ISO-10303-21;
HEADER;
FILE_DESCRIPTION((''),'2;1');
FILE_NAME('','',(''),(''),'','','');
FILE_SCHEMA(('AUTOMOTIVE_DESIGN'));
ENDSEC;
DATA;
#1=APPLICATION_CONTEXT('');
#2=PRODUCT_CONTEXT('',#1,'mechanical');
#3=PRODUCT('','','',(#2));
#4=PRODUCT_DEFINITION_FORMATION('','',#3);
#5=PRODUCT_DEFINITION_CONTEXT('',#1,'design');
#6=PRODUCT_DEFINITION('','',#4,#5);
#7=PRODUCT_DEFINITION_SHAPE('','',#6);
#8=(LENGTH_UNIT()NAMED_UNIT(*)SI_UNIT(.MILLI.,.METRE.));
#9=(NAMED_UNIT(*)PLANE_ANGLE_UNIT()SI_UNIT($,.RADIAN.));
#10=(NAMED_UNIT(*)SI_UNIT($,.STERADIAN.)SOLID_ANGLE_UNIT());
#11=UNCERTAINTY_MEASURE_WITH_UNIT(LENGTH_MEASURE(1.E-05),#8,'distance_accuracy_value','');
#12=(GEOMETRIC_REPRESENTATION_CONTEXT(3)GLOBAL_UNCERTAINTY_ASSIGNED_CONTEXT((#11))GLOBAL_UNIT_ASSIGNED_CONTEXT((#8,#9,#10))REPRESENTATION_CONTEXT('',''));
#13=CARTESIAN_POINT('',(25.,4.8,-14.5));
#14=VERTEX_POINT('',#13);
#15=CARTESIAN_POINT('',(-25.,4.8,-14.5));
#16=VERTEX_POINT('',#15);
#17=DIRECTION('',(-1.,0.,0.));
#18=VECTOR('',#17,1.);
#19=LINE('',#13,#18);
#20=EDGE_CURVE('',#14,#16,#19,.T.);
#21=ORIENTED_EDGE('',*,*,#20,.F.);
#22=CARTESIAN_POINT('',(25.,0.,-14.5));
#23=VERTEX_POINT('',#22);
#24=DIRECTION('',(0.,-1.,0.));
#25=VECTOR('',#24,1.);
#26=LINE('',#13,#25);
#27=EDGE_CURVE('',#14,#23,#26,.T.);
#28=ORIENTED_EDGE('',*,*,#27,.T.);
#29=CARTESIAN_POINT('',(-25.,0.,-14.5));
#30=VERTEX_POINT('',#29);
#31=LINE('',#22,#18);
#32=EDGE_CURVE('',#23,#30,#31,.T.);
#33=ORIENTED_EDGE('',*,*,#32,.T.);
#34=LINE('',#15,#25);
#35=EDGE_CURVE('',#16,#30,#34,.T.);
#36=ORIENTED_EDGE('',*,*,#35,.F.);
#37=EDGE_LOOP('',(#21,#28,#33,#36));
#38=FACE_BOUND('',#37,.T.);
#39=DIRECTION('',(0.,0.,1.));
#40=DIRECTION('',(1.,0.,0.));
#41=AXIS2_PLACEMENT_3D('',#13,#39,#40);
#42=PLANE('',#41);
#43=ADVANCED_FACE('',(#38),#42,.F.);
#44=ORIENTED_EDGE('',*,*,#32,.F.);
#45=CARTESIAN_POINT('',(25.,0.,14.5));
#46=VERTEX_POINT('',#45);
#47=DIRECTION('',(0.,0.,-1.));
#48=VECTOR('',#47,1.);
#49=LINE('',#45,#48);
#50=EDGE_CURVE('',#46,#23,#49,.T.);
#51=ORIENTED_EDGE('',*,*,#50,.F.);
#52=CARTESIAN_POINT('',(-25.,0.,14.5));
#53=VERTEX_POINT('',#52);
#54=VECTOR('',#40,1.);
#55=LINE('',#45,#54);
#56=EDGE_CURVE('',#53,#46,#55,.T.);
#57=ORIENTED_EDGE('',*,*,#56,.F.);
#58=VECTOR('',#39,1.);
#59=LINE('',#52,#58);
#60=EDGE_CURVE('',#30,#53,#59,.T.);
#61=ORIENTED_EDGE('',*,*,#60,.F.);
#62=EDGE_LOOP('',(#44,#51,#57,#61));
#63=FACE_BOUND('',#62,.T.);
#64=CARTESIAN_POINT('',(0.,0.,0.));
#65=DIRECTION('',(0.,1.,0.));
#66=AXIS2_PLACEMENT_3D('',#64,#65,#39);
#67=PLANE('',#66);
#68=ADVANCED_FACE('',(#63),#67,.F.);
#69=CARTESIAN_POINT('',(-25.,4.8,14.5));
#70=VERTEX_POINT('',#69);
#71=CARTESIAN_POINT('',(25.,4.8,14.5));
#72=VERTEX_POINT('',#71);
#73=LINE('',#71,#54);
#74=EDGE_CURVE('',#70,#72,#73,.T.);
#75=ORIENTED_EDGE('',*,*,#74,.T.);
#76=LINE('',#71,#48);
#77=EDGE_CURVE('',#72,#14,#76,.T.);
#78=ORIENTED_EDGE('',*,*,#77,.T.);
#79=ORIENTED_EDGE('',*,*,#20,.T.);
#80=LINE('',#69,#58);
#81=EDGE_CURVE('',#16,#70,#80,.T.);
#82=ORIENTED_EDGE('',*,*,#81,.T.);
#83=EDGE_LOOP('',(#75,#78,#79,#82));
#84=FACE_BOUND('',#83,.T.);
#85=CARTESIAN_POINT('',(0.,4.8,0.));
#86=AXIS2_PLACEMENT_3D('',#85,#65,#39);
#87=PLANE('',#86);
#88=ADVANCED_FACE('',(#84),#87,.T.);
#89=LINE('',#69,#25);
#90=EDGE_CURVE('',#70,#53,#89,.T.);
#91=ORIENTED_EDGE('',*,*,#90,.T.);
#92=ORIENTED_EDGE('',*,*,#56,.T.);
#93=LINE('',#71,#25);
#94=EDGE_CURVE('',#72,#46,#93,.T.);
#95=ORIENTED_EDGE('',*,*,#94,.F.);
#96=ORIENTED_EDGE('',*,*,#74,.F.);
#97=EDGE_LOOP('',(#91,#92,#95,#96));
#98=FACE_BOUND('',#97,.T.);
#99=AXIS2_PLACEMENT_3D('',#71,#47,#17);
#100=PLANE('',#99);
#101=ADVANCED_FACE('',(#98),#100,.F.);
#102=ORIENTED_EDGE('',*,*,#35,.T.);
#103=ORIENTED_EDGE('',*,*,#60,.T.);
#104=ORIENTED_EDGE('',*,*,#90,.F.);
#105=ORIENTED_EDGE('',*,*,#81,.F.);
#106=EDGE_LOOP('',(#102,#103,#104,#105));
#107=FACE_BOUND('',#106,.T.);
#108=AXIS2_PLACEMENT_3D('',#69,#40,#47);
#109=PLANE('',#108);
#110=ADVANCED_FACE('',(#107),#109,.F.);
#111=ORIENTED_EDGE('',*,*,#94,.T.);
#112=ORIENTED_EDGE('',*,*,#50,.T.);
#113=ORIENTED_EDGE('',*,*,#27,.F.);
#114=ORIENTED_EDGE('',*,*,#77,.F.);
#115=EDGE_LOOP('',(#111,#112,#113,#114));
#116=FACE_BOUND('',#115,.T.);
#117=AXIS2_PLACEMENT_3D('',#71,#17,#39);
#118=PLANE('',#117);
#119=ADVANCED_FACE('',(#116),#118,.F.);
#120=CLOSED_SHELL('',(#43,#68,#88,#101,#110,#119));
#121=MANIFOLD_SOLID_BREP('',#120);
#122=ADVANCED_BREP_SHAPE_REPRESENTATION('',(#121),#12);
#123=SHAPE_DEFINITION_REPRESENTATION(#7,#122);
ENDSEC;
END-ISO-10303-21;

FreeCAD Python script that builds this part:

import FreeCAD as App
import Part
import Sketcher

V = App.Vector
Q = App.Units.Quantity


def add_polygon(sketch, points):
    """Adds a closed chain of lines whose ends are joined by coincident constraints."""
    first, n = sketch.GeometryCount, len(points)
    for a, b in zip(points, points[1:] + points[:1]):
        sketch.addGeometry(Part.LineSegment(App.Vector(*a, 0), App.Vector(*b, 0)), False)
    for i in range(n):
        sketch.addConstraint(Sketcher.Constraint("Coincident", first + i, 2, first + (i + 1) % n, 1))

doc = App.newDocument("Part")
body = doc.addObject("PartDesign::Body", "Body")

# Sketch on XZ plane
sketch1 = body.newObject("Sketcher::SketchObject", "Sketch")
sketch1.AttachmentSupport = (doc.getObject("XZ_Plane"), [""])
sketch1.MapMode = "FlatFace"
add_polygon(sketch1, [(-25, -14), (-25, 14), (25, 14), (25, -14)])  # lines 0-3
sketch1.addConstraint(Sketcher.Constraint("Vertical", 0))
sketch1.addConstraint(Sketcher.Constraint("Horizontal", 1))
sketch1.addConstraint(Sketcher.Constraint("Vertical", 2))
sketch1.addConstraint(Sketcher.Constraint("Horizontal", 3))
sketch1.addConstraint(Sketcher.Constraint("Symmetric", 0, 2, 2, 2, -1, 1))
sketch1.addConstraint(Sketcher.Constraint("DistanceX", 1, 1, 1, 2, Q("50 mm")))
sketch1.addConstraint(Sketcher.Constraint("DistanceY", 0, 1, 0, 2, Q("29 mm")))
pad1 = body.newObject("PartDesign::Pad", "Pad")
pad1.Profile = sketch1
pad1.Length = 4.8
pad1.Reversed = True

doc.recompute()
